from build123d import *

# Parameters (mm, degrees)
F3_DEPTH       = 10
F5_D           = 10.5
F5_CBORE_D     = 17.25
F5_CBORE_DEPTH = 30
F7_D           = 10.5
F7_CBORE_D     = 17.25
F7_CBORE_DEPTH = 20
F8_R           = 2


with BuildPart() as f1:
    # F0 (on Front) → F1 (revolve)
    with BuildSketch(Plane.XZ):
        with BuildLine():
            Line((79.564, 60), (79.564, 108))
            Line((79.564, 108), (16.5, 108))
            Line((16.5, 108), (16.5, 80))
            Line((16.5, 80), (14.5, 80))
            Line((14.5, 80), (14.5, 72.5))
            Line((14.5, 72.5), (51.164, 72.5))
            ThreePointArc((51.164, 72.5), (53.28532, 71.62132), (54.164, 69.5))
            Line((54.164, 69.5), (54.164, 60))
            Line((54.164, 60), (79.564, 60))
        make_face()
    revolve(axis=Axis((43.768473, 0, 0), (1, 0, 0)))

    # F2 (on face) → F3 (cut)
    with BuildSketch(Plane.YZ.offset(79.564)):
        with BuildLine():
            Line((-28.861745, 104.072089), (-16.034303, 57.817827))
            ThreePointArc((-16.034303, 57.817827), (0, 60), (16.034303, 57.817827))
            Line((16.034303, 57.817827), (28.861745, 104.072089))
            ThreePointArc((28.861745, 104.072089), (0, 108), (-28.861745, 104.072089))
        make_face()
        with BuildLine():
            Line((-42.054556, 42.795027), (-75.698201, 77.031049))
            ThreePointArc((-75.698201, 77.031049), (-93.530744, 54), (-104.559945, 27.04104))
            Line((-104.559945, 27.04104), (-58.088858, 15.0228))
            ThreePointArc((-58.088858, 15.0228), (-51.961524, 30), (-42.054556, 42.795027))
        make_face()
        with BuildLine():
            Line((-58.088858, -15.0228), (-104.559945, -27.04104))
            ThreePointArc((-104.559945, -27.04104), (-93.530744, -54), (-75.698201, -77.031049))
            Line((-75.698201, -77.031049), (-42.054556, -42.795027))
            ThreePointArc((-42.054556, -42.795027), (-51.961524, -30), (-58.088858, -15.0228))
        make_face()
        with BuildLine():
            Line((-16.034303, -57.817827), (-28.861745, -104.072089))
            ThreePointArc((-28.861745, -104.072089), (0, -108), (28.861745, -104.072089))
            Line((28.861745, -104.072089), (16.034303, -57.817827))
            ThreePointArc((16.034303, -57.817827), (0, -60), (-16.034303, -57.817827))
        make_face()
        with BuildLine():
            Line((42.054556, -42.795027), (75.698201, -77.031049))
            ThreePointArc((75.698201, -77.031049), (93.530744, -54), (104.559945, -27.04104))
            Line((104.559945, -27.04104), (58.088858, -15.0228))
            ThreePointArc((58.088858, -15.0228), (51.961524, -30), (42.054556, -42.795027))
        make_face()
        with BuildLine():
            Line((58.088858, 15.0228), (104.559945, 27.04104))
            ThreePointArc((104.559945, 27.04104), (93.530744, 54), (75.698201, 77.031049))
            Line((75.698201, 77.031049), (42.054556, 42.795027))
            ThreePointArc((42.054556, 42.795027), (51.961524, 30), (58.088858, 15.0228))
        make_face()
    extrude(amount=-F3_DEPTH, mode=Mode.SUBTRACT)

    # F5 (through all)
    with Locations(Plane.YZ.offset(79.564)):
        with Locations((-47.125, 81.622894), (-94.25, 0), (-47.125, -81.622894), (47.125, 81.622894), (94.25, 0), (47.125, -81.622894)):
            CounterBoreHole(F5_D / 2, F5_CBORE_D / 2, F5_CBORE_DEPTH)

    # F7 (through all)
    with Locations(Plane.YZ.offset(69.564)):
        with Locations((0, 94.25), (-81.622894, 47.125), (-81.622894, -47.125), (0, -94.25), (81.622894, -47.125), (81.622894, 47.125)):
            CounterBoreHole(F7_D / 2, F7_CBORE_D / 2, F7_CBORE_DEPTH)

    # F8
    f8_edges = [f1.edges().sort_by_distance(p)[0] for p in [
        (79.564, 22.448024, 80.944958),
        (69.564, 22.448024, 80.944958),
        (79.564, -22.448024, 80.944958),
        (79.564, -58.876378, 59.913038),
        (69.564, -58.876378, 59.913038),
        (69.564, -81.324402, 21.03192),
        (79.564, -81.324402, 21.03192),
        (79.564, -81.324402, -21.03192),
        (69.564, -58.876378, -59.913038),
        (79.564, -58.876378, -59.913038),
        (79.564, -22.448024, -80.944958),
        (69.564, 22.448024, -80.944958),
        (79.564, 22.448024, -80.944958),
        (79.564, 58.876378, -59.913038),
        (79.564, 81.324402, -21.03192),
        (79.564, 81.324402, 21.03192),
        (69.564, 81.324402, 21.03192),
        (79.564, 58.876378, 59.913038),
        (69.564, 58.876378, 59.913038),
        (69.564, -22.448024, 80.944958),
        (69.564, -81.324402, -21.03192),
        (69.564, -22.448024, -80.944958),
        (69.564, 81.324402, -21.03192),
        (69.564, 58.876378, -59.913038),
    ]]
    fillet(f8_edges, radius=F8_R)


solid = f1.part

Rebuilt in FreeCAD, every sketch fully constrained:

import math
import FreeCAD as App
import Part
import Sketcher

V = App.Vector
Q = App.Units.Quantity


def edges_at(feature, points):
    """Names of the edges that pass closest to the given points."""
    edges = feature.Shape.Edges
    near = lambda p: min(range(len(edges)), key=lambda i: edges[i].distToShape(Part.Vertex(*p))[0])
    return sorted({f"Edge{near(p) + 1}" for p in points})

doc = App.newDocument("Part")
body = doc.addObject("PartDesign::Body", "Body")

sketch1 = body.newObject("Sketcher::SketchObject", "Sketch")
sketch1.AttachmentSupport = (doc.getObject("XZ_Plane"), [""])
sketch1.MapMode = "FlatFace"
sketch1.addGeometry([
    Part.LineSegment(V(79.6, 60, 0), V(79.6, 108, 0)),
    Part.LineSegment(V(79.6, 108, 0), V(16.5, 108, 0)),
    Part.LineSegment(V(16.5, 108, 0), V(16.5, 80, 0)),
    Part.LineSegment(V(16.5, 80, 0), V(14.5, 80, 0)),
    Part.LineSegment(V(14.5, 80, 0), V(14.5, 72.5, 0)),
    Part.LineSegment(V(14.5, 72.5, 0), V(51.2, 72.5, 0)),
    Part.ArcOfCircle(Part.Circle(V(51.2, 69.5, 0), V(0, 0, 1), 3), math.radians(0), math.radians(90)),
    Part.LineSegment(V(54.2, 69.5, 0), V(54.2, 60, 0)),
    Part.LineSegment(V(54.2, 60, 0), V(79.6, 60, 0)),
], False)
sketch1.addConstraint([
    Sketcher.Constraint("Coincident", 0, 2, 1, 1),
    Sketcher.Constraint("Coincident", 1, 2, 2, 1),
    Sketcher.Constraint("Coincident", 2, 2, 3, 1),
    Sketcher.Constraint("Coincident", 3, 2, 4, 1),
    Sketcher.Constraint("Coincident", 4, 2, 5, 1),
    Sketcher.Constraint("Tangent", 5, 2, 6, 2),
    Sketcher.Constraint("Tangent", 6, 1, 7, 1),
    Sketcher.Constraint("Coincident", 7, 2, 8, 1),
    Sketcher.Constraint("Coincident", 8, 2, 0, 1),
    Sketcher.Constraint("Vertical", 0),
    Sketcher.Constraint("Horizontal", 1),
    Sketcher.Constraint("Vertical", 2),
    Sketcher.Constraint("Horizontal", 3),
    Sketcher.Constraint("Vertical", 4),
    Sketcher.Constraint("Horizontal", 5),
    Sketcher.Constraint("Vertical", 7),
    Sketcher.Constraint("Horizontal", 8),
    Sketcher.Constraint("Radius", 6, Q("3.000001 mm")),
    Sketcher.Constraint("DistanceX", 3, 2, 3, 1, Q("2 mm")),
    Sketcher.Constraint("DistanceY", 0, 1, 0, 2, Q("48 mm")),
    Sketcher.Constraint("DistanceY", 2, 2, 2, 1, Q("28 mm")),
    Sketcher.Constraint("DistanceX", 8, 1, 8, 2, Q("25.4 mm")),
    Sketcher.Constraint("DistanceY", 4, 2, 4, 1, Q("7.5 mm")),
    Sketcher.Constraint("DistanceY", -1, 1, 0, 2, Q("108 mm")),
    Sketcher.Constraint("DistanceX", -1, 1, 1, 2, Q("16.5 mm")),
    Sketcher.Constraint("DistanceX", 1, 2, 1, 1, Q("63.064 mm")),
])
revolution = body.newObject("PartDesign::Revolution", "Revolution")
revolution.Profile = sketch1
revolution.ReferenceAxis = (sketch1, ["H_Axis"])
revolution.Angle = 360

sketch2 = body.newObject("Sketcher::SketchObject", "Sketch001")
sketch2.AttachmentSupport = (doc.getObject("YZ_Plane"), [""])
sketch2.MapMode = "FlatFace"
sketch2.AttachmentOffset = App.Placement(V(0, 0, 79.564), App.Rotation())
sketch2.addGeometry([
    Part.LineSegment(V(-29, 104, 0), V(-16, 58, 0)),
    Part.ArcOfCircle(Part.Circle(V(0, 0, 0), V(0, 0, 1), 60), math.radians(74), math.radians(106)),
    Part.LineSegment(V(16, 58, 0), V(29, 104, 0)),
    Part.ArcOfCircle(Part.Circle(V(0, 0, 0), V(0, 0, 1), 108), math.radians(75), math.radians(105)),
    Part.LineSegment(V(-42, 43, 0), V(-76, 77, 0)),
    Part.ArcOfCircle(Part.Circle(V(0, 0, 0), V(0, 0, 1), 108), math.radians(135), math.radians(166)),
    Part.LineSegment(V(-105, 27, 0), V(-58, 15, 0)),
    Part.ArcOfCircle(Part.Circle(V(0, 0, 0), V(0, 0, 1), 60), math.radians(135), math.radians(166)),
    Part.LineSegment(V(-58, -15, 0), V(-105, -27, 0)),
    Part.ArcOfCircle(Part.Circle(V(0, 0, 0), V(0, 0, 1), 108), math.radians(-166), math.radians(-135)),
    Part.LineSegment(V(-76, -77, 0), V(-42, -43, 0)),
    Part.ArcOfCircle(Part.Circle(V(0, 0, 0), V(0, 0, 1), 60), math.radians(-166), math.radians(-135)),
    Part.LineSegment(V(-16, -58, 0), V(-29, -104, 0)),
    Part.ArcOfCircle(Part.Circle(V(0, 0, 0), V(0, 0, 1), 108), math.radians(-105), math.radians(-75)),
    Part.LineSegment(V(29, -104, 0), V(16, -58, 0)),
    Part.ArcOfCircle(Part.Circle(V(0, 0, 0), V(0, 0, 1), 60), math.radians(-106), math.radians(-74)),
    Part.LineSegment(V(42, -43, 0), V(76, -77, 0)),
    Part.ArcOfCircle(Part.Circle(V(0, 0, 0), V(0, 0, 1), 108), math.radians(-45), math.radians(-14)),
    Part.LineSegment(V(105, -27, 0), V(58, -15, 0)),
    Part.ArcOfCircle(Part.Circle(V(0, 0, 0), V(0, 0, 1), 60), math.radians(-45), math.radians(-14)),
    Part.LineSegment(V(58, 15, 0), V(105, 27, 0)),
    Part.ArcOfCircle(Part.Circle(V(0, 0, 0), V(0, 0, 1), 108), math.radians(14), math.radians(45)),
    Part.LineSegment(V(76, 77, 0), V(42, 43, 0)),
    Part.ArcOfCircle(Part.Circle(V(0, 0, 0), V(0, 0, 1), 60), math.radians(14), math.radians(45)),
], False)
sketch2.addConstraint([
    Sketcher.Constraint("Coincident", 0, 2, 1, 2),
    Sketcher.Constraint("Coincident", 1, 1, 2, 1),
    Sketcher.Constraint("Coincident", 2, 2, 3, 1),
    Sketcher.Constraint("Coincident", 3, 2, 0, 1),
    Sketcher.Constraint("Coincident", 4, 2, 5, 1),
    Sketcher.Constraint("Coincident", 5, 2, 6, 1),
    Sketcher.Constraint("Coincident", 6, 2, 7, 2),
    Sketcher.Constraint("Coincident", 7, 1, 4, 1),
    Sketcher.Constraint("Coincident", 8, 2, 9, 1),
    Sketcher.Constraint("Coincident", 9, 2, 10, 1),
    Sketcher.Constraint("Coincident", 10, 2, 11, 2),
    Sketcher.Constraint("Coincident", 11, 1, 8, 1),
    Sketcher.Constraint("Coincident", 12, 2, 13, 1),
    Sketcher.Constraint("Coincident", 13, 2, 14, 1),
    Sketcher.Constraint("Coincident", 14, 2, 15, 2),
    Sketcher.Constraint("Coincident", 15, 1, 12, 1),
    Sketcher.Constraint("Coincident", 16, 2, 17, 1),
    Sketcher.Constraint("Coincident", 17, 2, 18, 1),
    Sketcher.Constraint("Coincident", 18, 2, 19, 2),
    Sketcher.Constraint("Coincident", 19, 1, 16, 1),
    Sketcher.Constraint("Coincident", 20, 2, 21, 1),
    Sketcher.Constraint("Coincident", 21, 2, 22, 1),
    Sketcher.Constraint("Coincident", 22, 2, 23, 2),
    Sketcher.Constraint("Coincident", 23, 1, 20, 1),
    Sketcher.Constraint("Coincident", 1, 3, -1, 1),
    Sketcher.Constraint("Coincident", 3, 3, -1, 1),
    Sketcher.Constraint("Coincident", 5, 3, -1, 1),
    Sketcher.Constraint("Coincident", 7, 3, -1, 1),
    Sketcher.Constraint("Coincident", 9, 3, -1, 1),
    Sketcher.Constraint("Coincident", 11, 3, -1, 1),
    Sketcher.Constraint("Coincident", 13, 3, -1, 1),
    Sketcher.Constraint("Coincident", 15, 3, -1, 1),
    Sketcher.Constraint("Coincident", 17, 3, -1, 1),
    Sketcher.Constraint("Coincident", 19, 3, -1, 1),
    Sketcher.Constraint("Coincident", 21, 3, -1, 1),
    Sketcher.Constraint("Coincident", 23, 3, -1, 1),
    Sketcher.Constraint("Equal", 5, 9),
    Sketcher.Constraint("Equal", 7, 11),
    Sketcher.Constraint("Equal", 3, 13),
    Sketcher.Constraint("Equal", 1, 15),
    Sketcher.Constraint("Equal", 9, 17),
    Sketcher.Constraint("Equal", 11, 19),
    Sketcher.Constraint("Equal", 17, 21),
    Sketcher.Constraint("Equal", 19, 23),
    Sketcher.Constraint("Parallel", 2, 12),
    Sketcher.Constraint("Parallel", 0, 14),
    Sketcher.Constraint("Parallel", 4, 16),
    Sketcher.Constraint("Parallel", 6, 18),
    Sketcher.Constraint("Parallel", 8, 20),
    Sketcher.Constraint("Parallel", 10, 22),
    Sketcher.Constraint("Horizontal", 0, 2, 1, 1),
    Sketcher.Constraint("Horizontal", 2, 2, 3, 2),
    Sketcher.Constraint("Horizontal", 12, 2, 13, 2),
    Sketcher.Constraint("Horizontal", 9, 2, 16, 2),
    Sketcher.Constraint("Horizontal", 8, 2, 17, 2),
    Sketcher.Constraint("Horizontal", 11, 1, 18, 2),
    Sketcher.Constraint("Horizontal", 10, 2, 19, 1),
    Sketcher.Constraint("Horizontal", 5, 2, 20, 2),
    Sketcher.Constraint("Horizontal", 4, 2, 21, 2),
    Sketcher.Constraint("Vertical", 5, 2, 8, 2),
    Sketcher.Constraint("Vertical", 4, 2, 9, 2),
    Sketcher.Constraint("Vertical", 3, 2, 12, 2),
    Sketcher.Constraint("Equal", 2, 4),
    Sketcher.Constraint("Radius", 1, Q("59.999998 mm")),
    Sketcher.Constraint("Radius", 7, Q("60.000001 mm")),
    Sketcher.Constraint("Distance", 0, Q("48 mm")),
    Sketcher.Constraint("Angle", 0, Q("-74.5 deg")),
    Sketcher.Constraint("Angle", 4, Q("134.5 deg")),
    Sketcher.Constraint("Angle", 6, Q("-14.5 deg")),
    Sketcher.Constraint("DistanceX", 4, 2, -1, 1, Q("75.698201 mm")),
    Sketcher.Constraint("DistanceY", -1, 1, 6, 2, Q("15.0228 mm")),
    Sketcher.Constraint("DistanceX", 0, 2, 5, 3, Q("16.034301 mm")),
])
pocket1 = body.newObject("PartDesign::Pocket", "Pocket")
pocket1.Profile = sketch2
pocket1.Length = 10

sketch3 = body.newObject("Sketcher::SketchObject", "Sketch002")
sketch3.AttachmentSupport = (doc.getObject("YZ_Plane"), [""])
sketch3.MapMode = "FlatFace"
sketch3.AttachmentOffset = App.Placement(V(0, 0, 79.564), App.Rotation())
sketch3.addGeometry([
    Part.Circle(V(-47, 82, 0), V(0, 0, 1), 5),
    Part.Circle(V(-94, 0, 0), V(0, 0, 1), 5),
    Part.Circle(V(-47, -82, 0), V(0, 0, 1), 5),
    Part.Circle(V(47, 82, 0), V(0, 0, 1), 5),
    Part.Circle(V(94, 0, 0), V(0, 0, 1), 5),
    Part.Circle(V(47, -82, 0), V(0, 0, 1), 5),
], False)
sketch3.addConstraint([
    Sketcher.Constraint("Equal", 0, 1),
    Sketcher.Constraint("Equal", 1, 2),
    Sketcher.Constraint("Equal", 2, 3),
    Sketcher.Constraint("Equal", 3, 4),
    Sketcher.Constraint("Equal", 4, 5),
    Sketcher.Constraint("Symmetric", 2, 3, 3, 3, -1, 1),
    Sketcher.Constraint("Symmetric", 1, 3, 4, 3, -1, 1),
    Sketcher.Constraint("Symmetric", 0, 3, 5, 3, -1, 1),
    Sketcher.Constraint("Symmetric", 0, 3, 3, 3, -2),
    Sketcher.Constraint("PointOnObject", 1, 3, -1),
    Sketcher.Constraint("Diameter", 0, Q("10.5 mm")),
    Sketcher.Constraint("DistanceX", 1, 3, 4, 3, Q("188.5 mm")),
    Sketcher.Constraint("DistanceX", 0, 3, 3, 3, Q("94.25 mm")),
    Sketcher.Constraint("DistanceY", 2, 3, 0, 3, Q("163.245788 mm")),
])
doc.recompute()
hole = body.newObject("PartDesign::Hole", "Hole")
hole.Profile = sketch3
hole.ThreadType = "None"
hole.Diameter = 10.5
hole.DepthType = "ThroughAll"
hole.HoleCutType = "Counterbore"
hole.HoleCutDiameter = 17.25
hole.HoleCutDepth = 30

sketch4 = body.newObject("Sketcher::SketchObject", "Sketch003")
sketch4.AttachmentSupport = (doc.getObject("YZ_Plane"), [""])
sketch4.MapMode = "FlatFace"
sketch4.AttachmentOffset = App.Placement(V(0, 0, 69.564), App.Rotation())
sketch4.addGeometry([
    Part.Circle(V(0, 94, 0), V(0, 0, 1), 5),
    Part.Circle(V(-82, 47, 0), V(0, 0, 1), 5),
    Part.Circle(V(-82, -47, 0), V(0, 0, 1), 5),
    Part.Circle(V(0, -94, 0), V(0, 0, 1), 5),
    Part.Circle(V(82, -47, 0), V(0, 0, 1), 5),
    Part.Circle(V(82, 47, 0), V(0, 0, 1), 5),
], False)
sketch4.addConstraint([
    Sketcher.Constraint("Equal", 0, 1),
    Sketcher.Constraint("Equal", 1, 2),
    Sketcher.Constraint("Equal", 2, 3),
    Sketcher.Constraint("Equal", 3, 4),
    Sketcher.Constraint("Equal", 4, 5),
    Sketcher.Constraint("Symmetric", 0, 3, 3, 3, -1, 1),
    Sketcher.Constraint("Symmetric", 1, 3, 4, 3, -1, 1),
    Sketcher.Constraint("Symmetric", 2, 3, 5, 3, -1, 1),
    Sketcher.Constraint("Symmetric", 2, 3, 4, 3, -2),
    Sketcher.Constraint("PointOnObject", 0, 3, -2),
    Sketcher.Constraint("Diameter", 0, Q("10.5 mm")),
    Sketcher.Constraint("DistanceY", 3, 3, 0, 3, Q("188.5 mm")),
    Sketcher.Constraint("DistanceY", 2, 3, 1, 3, Q("94.25 mm")),
    Sketcher.Constraint("DistanceX", 2, 3, 4, 3, Q("163.245788 mm")),
])
doc.recompute()
hole2 = body.newObject("PartDesign::Hole", "Hole001")
hole2.Profile = sketch4
hole2.ThreadType = "None"
hole2.Diameter = 10.5
hole2.DepthType = "ThroughAll"
hole2.HoleCutType = "Counterbore"
hole2.HoleCutDiameter = 17.25
hole2.HoleCutDepth = 20
doc.recompute()

fillet = body.newObject("PartDesign::Fillet", "Fillet")
fillet.Base = (hole2, edges_at(hole2, [
    (79.564, 22.448, 80.945),
    (69.564, 22.448, 80.945),
    (79.564, -22.448, 80.945),
    (79.564, -58.876, 59.913),
    (69.564, -58.876, 59.913),
    (69.564, -81.324, 21.032),
    (79.564, -81.324, 21.032),
    (79.564, -81.324, -21.032),
    (69.564, -58.876, -59.913),
    (79.564, -58.876, -59.913),
    (79.564, -22.448, -80.945),
    (69.564, 22.448, -80.945),
    (79.564, 22.448, -80.945),
    (79.564, 58.876, -59.913),
    (79.564, 81.324, -21.032),
    (79.564, 81.324, 21.032),
    (69.564, 81.324, 21.032),
    (79.564, 58.876, 59.913),
    (69.564, 58.876, 59.913),
    (69.564, -22.448, 80.945),
    (69.564, -81.324, -21.032),
    (69.564, -22.448, -80.945),
    (69.564, 81.324, -21.032),
    (69.564, 58.876, -59.913),
]))
fillet.Radius = 2

doc.recompute()
